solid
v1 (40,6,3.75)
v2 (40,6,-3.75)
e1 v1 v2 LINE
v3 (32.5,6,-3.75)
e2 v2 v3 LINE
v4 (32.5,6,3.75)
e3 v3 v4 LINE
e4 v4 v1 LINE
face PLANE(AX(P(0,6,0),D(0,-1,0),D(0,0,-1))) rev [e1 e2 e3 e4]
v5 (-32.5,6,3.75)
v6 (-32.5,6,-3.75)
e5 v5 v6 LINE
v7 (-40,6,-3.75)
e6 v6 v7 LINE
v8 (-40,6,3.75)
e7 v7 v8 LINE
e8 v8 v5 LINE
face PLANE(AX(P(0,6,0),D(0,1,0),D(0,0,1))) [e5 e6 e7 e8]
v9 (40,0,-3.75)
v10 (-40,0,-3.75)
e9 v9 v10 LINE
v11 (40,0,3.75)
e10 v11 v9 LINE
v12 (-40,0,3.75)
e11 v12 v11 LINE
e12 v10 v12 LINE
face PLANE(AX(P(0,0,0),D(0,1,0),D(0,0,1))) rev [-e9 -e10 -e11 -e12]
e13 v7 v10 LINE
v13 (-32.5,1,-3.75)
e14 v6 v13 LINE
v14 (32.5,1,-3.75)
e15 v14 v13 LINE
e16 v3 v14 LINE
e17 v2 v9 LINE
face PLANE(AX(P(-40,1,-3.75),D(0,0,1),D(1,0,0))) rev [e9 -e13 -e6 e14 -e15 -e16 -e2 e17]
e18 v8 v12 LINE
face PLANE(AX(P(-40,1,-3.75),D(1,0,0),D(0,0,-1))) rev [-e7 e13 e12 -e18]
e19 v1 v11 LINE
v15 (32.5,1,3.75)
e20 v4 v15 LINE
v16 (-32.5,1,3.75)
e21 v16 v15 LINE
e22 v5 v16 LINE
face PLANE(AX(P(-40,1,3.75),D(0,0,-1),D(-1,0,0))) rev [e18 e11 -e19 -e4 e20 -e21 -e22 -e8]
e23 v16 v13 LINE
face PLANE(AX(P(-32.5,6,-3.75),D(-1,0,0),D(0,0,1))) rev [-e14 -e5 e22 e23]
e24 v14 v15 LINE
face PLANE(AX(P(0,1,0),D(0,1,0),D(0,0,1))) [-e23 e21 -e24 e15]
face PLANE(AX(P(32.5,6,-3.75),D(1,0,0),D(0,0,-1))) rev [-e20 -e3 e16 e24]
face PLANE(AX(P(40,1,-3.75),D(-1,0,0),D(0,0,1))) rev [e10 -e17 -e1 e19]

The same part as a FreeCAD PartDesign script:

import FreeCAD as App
import Part
import Sketcher

doc = App.newDocument("Part")
params = doc.addObject("Spreadsheet::Sheet", "Params")
for row, (alias, value) in enumerate([
    ("sketch1_width", "80 mm"),
    ("sketch1_height", "7.5 mm"),
    ("pad1_length", "1 mm"),
    ("sketch2_width", "7.5 mm"),
    ("pad2_length", "5 mm"),
], start=1):
    params.set(f"A{row}", alias)
    params.set(f"B{row}", "=" + value)
    params.setAlias(f"B{row}", alias)

body = doc.addObject("PartDesign::Body", "Body")

sketch1 = doc.addObject("Sketcher::SketchObject", "Sketch")
body.addObject(sketch1)
sketch1.AttachmentSupport = (doc.XZ_Plane, [""])
sketch1.MapMode = "FlatFace"
sketch1.addGeometry(Part.LineSegment(App.Vector(-40, -4, 0), App.Vector(-40, 4, 0)), False)
sketch1.addGeometry(Part.LineSegment(App.Vector(-40, 4, 0), App.Vector(40, 4, 0)), False)
sketch1.addGeometry(Part.LineSegment(App.Vector(40, 4, 0), App.Vector(40, -4, 0)), False)
sketch1.addGeometry(Part.LineSegment(App.Vector(40, -4, 0), App.Vector(-40, -4, 0)), False)
sketch1.addConstraint(Sketcher.Constraint("Coincident", 0, 2, 1, 1))
sketch1.addConstraint(Sketcher.Constraint("Coincident", 1, 2, 2, 1))
sketch1.addConstraint(Sketcher.Constraint("Coincident", 2, 2, 3, 1))
sketch1.addConstraint(Sketcher.Constraint("Coincident", 3, 2, 0, 1))
sketch1.addConstraint(Sketcher.Constraint("Vertical", 0))
sketch1.addConstraint(Sketcher.Constraint("Horizontal", 1))
sketch1.addConstraint(Sketcher.Constraint("Vertical", 2))
sketch1.addConstraint(Sketcher.Constraint("Horizontal", 3))
sketch1.addConstraint(Sketcher.Constraint("Symmetric", 0, 2, 2, 2, -1, 1))
sketch1.addConstraint(Sketcher.Constraint("DistanceX", 1, 1, 1, 2, 80.0))
sketch1.addConstraint(Sketcher.Constraint("DistanceY", 0, 1, 0, 2, 7.5))
sketch1.setExpression("Constraints[9]", "Params.sketch1_width")
sketch1.setExpression("Constraints[10]", "Params.sketch1_height")
pad1 = doc.addObject("PartDesign::Pad", "Pad")
body.addObject(pad1)
pad1.Profile = sketch1
pad1.setExpression("Length", "Params.pad1_length")
pad1.Reversed = True

sketch2 = doc.addObject("Sketcher::SketchObject", "Sketch001")
body.addObject(sketch2)
sketch2.AttachmentSupport = (doc.XZ_Plane, [""])
sketch2.MapMode = "FlatFace"
sketch2.AttachmentOffset = App.Placement(App.Vector(0, 0, -1), App.Rotation())
sketch2.addGeometry(Part.LineSegment(App.Vector(-40, -4, 0), App.Vector(-40, 4, 0)), False)
sketch2.addGeometry(Part.LineSegment(App.Vector(-40, 4, 0), App.Vector(-32, 4, 0)), False)
sketch2.addGeometry(Part.LineSegment(App.Vector(-32, 4, 0), App.Vector(-32, -4, 0)), False)
sketch2.addGeometry(Part.LineSegment(App.Vector(-32, -4, 0), App.Vector(-40, -4, 0)), False)
sketch2.addGeometry(Part.LineSegment(App.Vector(32, -4, 0), App.Vector(32, 4, 0)), False)
sketch2.addGeometry(Part.LineSegment(App.Vector(32, 4, 0), App.Vector(40, 4, 0)), False)
sketch2.addGeometry(Part.LineSegment(App.Vector(40, 4, 0), App.Vector(40, -4, 0)), False)
sketch2.addGeometry(Part.LineSegment(App.Vector(40, -4, 0), App.Vector(32, -4, 0)), False)
sketch2.addConstraint(Sketcher.Constraint("Coincident", 0, 2, 1, 1))
sketch2.addConstraint(Sketcher.Constraint("Coincident", 1, 2, 2, 1))
sketch2.addConstraint(Sketcher.Constraint("Coincident", 2, 2, 3, 1))
sketch2.addConstraint(Sketcher.Constraint("Coincident", 3, 2, 0, 1))
sketch2.addConstraint(Sketcher.Constraint("Coincident", 4, 2, 5, 1))
sketch2.addConstraint(Sketcher.Constraint("Coincident", 5, 2, 6, 1))
sketch2.addConstraint(Sketcher.Constraint("Coincident", 6, 2, 7, 1))
sketch2.addConstraint(Sketcher.Constraint("Coincident", 7, 2, 4, 1))
sketch2.addConstraint(Sketcher.Constraint("Vertical", 0))
sketch2.addConstraint(Sketcher.Constraint("Horizontal", 1))
sketch2.addConstraint(Sketcher.Constraint("Vertical", 2))
sketch2.addConstraint(Sketcher.Constraint("Horizontal", 3))
sketch2.addConstraint(Sketcher.Constraint("Vertical", 4))
sketch2.addConstraint(Sketcher.Constraint("Horizontal", 5))
sketch2.addConstraint(Sketcher.Constraint("Vertical", 6))
sketch2.addConstraint(Sketcher.Constraint("Horizontal", 7))
sketch2.addConstraint(Sketcher.Constraint("Symmetric", 2, 2, 4, 2, -1, 1))
sketch2.addConstraint(Sketcher.Constraint("Symmetric", 0, 2, 6, 2, -1, 1))
sketch2.addConstraint(Sketcher.Constraint("Horizontal", 1, 2, 4, 2))
sketch2.addConstraint(Sketcher.Constraint("Equal", 7, 0))
sketch2.addConstraint(Sketcher.Constraint("DistanceX", 1, 1, 1, 2, 7.5))
sketch2.addConstraint(Sketcher.Constraint("DistanceX", 0, 2, -1, 1, 40.0))
sketch2.setExpression("Constraints[20]", "Params.sketch2_width")
pad2 = doc.addObject("PartDesign::Pad", "Pad001")
body.addObject(pad2)
pad2.Profile = sketch2
pad2.setExpression("Length", "Params.pad2_length")
pad2.Reversed = True

doc.recompute()
